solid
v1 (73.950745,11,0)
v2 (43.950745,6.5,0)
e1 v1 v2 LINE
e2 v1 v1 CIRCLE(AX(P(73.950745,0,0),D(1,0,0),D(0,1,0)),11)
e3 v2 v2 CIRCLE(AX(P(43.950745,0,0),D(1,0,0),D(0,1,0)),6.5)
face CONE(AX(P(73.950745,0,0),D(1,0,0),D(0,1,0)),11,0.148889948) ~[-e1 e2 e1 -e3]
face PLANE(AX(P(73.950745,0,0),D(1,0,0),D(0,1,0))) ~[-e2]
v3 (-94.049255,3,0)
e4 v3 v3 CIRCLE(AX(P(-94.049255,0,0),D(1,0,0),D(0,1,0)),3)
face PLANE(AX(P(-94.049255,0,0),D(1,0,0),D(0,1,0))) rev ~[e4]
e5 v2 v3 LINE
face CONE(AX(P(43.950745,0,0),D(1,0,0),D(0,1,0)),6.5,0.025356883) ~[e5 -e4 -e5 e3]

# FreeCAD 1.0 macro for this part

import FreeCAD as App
import Part
import Sketcher


def add_polygon(sketch, points):
    """Adds a closed chain of lines whose ends are joined by coincident constraints."""
    first, n = sketch.GeometryCount, len(points)
    for a, b in zip(points, points[1:] + points[:1]):
        sketch.addGeometry(Part.LineSegment(App.Vector(*a, 0), App.Vector(*b, 0)), False)
    for i in range(n):
        sketch.addConstraint(Sketcher.Constraint("Coincident", first + i, 2, first + (i + 1) % n, 1))

doc = App.newDocument("Part")
body = doc.addObject("PartDesign::Body", "Body")

# Sketch on XY plane
sketch1 = body.newObject("Sketcher::SketchObject", "Sketch")
sketch1.AttachmentSupport = (doc.getObject("XY_Plane"), [""])
sketch1.MapMode = "FlatFace"
add_polygon(sketch1, [(-94.049255, 3), (-94.049255, 0), (73.950745, 0), (73.950745, 11), (43.950745, 6.5)])  # lines 0-4
sketch1.addConstraint(Sketcher.Constraint("Vertical", 0))
sketch1.addConstraint(Sketcher.Constraint("Horizontal", 1))
sketch1.addConstraint(Sketcher.Constraint("Vertical", 2))
sketch1.addConstraint(Sketcher.Constraint("PointOnObject", 0, 2, -1))
sketch1.addConstraint(Sketcher.Constraint("DistanceX", 1, 1, 1, 2, 168.0))
sketch1.addConstraint(Sketcher.Constraint("DistanceY", 0, 2, 0, 1, 3.0))
sketch1.addConstraint(Sketcher.Constraint("DistanceY", 2, 1, 2, 2, 11.0))
sketch1.addConstraint(Sketcher.Constraint("DistanceX", 3, 2, 2, 2, 30.0))
sketch1.addConstraint(Sketcher.Constraint("DistanceY", -1, 1, 3, 2, 6.5))
sketch1.addConstraint(Sketcher.Constraint("DistanceX", 0, 2, -1, 1, 94.049255))
revolution = body.newObject("PartDesign::Revolution", "Revolution")
revolution.Profile = sketch1
revolution.ReferenceAxis = (sketch1, ["H_Axis"])
revolution.Angle = 360

doc.recompute()
